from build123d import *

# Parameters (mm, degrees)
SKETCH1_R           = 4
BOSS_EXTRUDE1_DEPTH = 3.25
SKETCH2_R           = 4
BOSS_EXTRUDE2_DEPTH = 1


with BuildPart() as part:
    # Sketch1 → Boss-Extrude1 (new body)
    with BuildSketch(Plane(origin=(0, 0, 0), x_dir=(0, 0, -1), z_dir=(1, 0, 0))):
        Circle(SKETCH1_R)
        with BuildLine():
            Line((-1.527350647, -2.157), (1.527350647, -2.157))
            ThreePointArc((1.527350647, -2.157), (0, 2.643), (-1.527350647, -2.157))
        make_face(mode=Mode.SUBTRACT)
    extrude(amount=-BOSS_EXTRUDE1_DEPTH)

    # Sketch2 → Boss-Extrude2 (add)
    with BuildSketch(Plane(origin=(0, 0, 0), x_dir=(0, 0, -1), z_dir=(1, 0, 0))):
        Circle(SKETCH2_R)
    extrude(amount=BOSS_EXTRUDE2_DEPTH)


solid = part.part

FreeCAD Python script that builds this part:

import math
import FreeCAD as App
import Part
import Sketcher

doc = App.newDocument("Part")
body = doc.addObject("PartDesign::Body", "Body")

# Sketch on YZ plane
sketch1 = body.newObject("Sketcher::SketchObject", "Sketch")
sketch1.AttachmentSupport = (doc.getObject("YZ_Plane"), [""])
sketch1.MapMode = "FlatFace"
sketch1.addGeometry([
    Part.Circle(App.Vector(0, 0, 0), App.Vector(0, 0, 1), 4),
    Part.LineSegment(App.Vector(-2.2, -1.5, 0), App.Vector(-2.2, 1.5, 0)),
    Part.ArcOfCircle(Part.Circle(App.Vector(0, 0, 0), App.Vector(0, 0, 1), 2.6), math.radians(-145), math.radians(145)),
], False)
sketch1.addConstraint([
    Sketcher.Constraint("Coincident", 1, 1, 2, 1),
    Sketcher.Constraint("Coincident", 2, 2, 1, 2),
    Sketcher.Constraint("Vertical", 1),
    Sketcher.Constraint("Coincident", 0, 3, -1, 1),
    Sketcher.Constraint("Coincident", 2, 3, -1, 1),
    Sketcher.Constraint("Diameter", 0, 8.0),
    Sketcher.Constraint("Radius", 2, 2.643),
    Sketcher.Constraint("DistanceY", 1, 1, 1, 2, 3.054701),
])
pad1 = body.newObject("PartDesign::Pad", "Pad")
pad1.Profile = sketch1
pad1.Length = 3.25
pad1.Reversed = True

# Sketch on YZ plane
sketch2 = body.newObject("Sketcher::SketchObject", "Sketch001")
sketch2.AttachmentSupport = (doc.getObject("YZ_Plane"), [""])
sketch2.MapMode = "FlatFace"
sketch2.addGeometry(Part.Circle(App.Vector(0, 0, 0), App.Vector(0, 0, 1), 4), False)
sketch2.addConstraint([
    Sketcher.Constraint("Coincident", 0, 3, -1, 1),
    Sketcher.Constraint("Diameter", 0, 8.0),
])
pad2 = body.newObject("PartDesign::Pad", "Pad001")
pad2.Profile = sketch2
pad2.Length = 1

doc.recompute()
